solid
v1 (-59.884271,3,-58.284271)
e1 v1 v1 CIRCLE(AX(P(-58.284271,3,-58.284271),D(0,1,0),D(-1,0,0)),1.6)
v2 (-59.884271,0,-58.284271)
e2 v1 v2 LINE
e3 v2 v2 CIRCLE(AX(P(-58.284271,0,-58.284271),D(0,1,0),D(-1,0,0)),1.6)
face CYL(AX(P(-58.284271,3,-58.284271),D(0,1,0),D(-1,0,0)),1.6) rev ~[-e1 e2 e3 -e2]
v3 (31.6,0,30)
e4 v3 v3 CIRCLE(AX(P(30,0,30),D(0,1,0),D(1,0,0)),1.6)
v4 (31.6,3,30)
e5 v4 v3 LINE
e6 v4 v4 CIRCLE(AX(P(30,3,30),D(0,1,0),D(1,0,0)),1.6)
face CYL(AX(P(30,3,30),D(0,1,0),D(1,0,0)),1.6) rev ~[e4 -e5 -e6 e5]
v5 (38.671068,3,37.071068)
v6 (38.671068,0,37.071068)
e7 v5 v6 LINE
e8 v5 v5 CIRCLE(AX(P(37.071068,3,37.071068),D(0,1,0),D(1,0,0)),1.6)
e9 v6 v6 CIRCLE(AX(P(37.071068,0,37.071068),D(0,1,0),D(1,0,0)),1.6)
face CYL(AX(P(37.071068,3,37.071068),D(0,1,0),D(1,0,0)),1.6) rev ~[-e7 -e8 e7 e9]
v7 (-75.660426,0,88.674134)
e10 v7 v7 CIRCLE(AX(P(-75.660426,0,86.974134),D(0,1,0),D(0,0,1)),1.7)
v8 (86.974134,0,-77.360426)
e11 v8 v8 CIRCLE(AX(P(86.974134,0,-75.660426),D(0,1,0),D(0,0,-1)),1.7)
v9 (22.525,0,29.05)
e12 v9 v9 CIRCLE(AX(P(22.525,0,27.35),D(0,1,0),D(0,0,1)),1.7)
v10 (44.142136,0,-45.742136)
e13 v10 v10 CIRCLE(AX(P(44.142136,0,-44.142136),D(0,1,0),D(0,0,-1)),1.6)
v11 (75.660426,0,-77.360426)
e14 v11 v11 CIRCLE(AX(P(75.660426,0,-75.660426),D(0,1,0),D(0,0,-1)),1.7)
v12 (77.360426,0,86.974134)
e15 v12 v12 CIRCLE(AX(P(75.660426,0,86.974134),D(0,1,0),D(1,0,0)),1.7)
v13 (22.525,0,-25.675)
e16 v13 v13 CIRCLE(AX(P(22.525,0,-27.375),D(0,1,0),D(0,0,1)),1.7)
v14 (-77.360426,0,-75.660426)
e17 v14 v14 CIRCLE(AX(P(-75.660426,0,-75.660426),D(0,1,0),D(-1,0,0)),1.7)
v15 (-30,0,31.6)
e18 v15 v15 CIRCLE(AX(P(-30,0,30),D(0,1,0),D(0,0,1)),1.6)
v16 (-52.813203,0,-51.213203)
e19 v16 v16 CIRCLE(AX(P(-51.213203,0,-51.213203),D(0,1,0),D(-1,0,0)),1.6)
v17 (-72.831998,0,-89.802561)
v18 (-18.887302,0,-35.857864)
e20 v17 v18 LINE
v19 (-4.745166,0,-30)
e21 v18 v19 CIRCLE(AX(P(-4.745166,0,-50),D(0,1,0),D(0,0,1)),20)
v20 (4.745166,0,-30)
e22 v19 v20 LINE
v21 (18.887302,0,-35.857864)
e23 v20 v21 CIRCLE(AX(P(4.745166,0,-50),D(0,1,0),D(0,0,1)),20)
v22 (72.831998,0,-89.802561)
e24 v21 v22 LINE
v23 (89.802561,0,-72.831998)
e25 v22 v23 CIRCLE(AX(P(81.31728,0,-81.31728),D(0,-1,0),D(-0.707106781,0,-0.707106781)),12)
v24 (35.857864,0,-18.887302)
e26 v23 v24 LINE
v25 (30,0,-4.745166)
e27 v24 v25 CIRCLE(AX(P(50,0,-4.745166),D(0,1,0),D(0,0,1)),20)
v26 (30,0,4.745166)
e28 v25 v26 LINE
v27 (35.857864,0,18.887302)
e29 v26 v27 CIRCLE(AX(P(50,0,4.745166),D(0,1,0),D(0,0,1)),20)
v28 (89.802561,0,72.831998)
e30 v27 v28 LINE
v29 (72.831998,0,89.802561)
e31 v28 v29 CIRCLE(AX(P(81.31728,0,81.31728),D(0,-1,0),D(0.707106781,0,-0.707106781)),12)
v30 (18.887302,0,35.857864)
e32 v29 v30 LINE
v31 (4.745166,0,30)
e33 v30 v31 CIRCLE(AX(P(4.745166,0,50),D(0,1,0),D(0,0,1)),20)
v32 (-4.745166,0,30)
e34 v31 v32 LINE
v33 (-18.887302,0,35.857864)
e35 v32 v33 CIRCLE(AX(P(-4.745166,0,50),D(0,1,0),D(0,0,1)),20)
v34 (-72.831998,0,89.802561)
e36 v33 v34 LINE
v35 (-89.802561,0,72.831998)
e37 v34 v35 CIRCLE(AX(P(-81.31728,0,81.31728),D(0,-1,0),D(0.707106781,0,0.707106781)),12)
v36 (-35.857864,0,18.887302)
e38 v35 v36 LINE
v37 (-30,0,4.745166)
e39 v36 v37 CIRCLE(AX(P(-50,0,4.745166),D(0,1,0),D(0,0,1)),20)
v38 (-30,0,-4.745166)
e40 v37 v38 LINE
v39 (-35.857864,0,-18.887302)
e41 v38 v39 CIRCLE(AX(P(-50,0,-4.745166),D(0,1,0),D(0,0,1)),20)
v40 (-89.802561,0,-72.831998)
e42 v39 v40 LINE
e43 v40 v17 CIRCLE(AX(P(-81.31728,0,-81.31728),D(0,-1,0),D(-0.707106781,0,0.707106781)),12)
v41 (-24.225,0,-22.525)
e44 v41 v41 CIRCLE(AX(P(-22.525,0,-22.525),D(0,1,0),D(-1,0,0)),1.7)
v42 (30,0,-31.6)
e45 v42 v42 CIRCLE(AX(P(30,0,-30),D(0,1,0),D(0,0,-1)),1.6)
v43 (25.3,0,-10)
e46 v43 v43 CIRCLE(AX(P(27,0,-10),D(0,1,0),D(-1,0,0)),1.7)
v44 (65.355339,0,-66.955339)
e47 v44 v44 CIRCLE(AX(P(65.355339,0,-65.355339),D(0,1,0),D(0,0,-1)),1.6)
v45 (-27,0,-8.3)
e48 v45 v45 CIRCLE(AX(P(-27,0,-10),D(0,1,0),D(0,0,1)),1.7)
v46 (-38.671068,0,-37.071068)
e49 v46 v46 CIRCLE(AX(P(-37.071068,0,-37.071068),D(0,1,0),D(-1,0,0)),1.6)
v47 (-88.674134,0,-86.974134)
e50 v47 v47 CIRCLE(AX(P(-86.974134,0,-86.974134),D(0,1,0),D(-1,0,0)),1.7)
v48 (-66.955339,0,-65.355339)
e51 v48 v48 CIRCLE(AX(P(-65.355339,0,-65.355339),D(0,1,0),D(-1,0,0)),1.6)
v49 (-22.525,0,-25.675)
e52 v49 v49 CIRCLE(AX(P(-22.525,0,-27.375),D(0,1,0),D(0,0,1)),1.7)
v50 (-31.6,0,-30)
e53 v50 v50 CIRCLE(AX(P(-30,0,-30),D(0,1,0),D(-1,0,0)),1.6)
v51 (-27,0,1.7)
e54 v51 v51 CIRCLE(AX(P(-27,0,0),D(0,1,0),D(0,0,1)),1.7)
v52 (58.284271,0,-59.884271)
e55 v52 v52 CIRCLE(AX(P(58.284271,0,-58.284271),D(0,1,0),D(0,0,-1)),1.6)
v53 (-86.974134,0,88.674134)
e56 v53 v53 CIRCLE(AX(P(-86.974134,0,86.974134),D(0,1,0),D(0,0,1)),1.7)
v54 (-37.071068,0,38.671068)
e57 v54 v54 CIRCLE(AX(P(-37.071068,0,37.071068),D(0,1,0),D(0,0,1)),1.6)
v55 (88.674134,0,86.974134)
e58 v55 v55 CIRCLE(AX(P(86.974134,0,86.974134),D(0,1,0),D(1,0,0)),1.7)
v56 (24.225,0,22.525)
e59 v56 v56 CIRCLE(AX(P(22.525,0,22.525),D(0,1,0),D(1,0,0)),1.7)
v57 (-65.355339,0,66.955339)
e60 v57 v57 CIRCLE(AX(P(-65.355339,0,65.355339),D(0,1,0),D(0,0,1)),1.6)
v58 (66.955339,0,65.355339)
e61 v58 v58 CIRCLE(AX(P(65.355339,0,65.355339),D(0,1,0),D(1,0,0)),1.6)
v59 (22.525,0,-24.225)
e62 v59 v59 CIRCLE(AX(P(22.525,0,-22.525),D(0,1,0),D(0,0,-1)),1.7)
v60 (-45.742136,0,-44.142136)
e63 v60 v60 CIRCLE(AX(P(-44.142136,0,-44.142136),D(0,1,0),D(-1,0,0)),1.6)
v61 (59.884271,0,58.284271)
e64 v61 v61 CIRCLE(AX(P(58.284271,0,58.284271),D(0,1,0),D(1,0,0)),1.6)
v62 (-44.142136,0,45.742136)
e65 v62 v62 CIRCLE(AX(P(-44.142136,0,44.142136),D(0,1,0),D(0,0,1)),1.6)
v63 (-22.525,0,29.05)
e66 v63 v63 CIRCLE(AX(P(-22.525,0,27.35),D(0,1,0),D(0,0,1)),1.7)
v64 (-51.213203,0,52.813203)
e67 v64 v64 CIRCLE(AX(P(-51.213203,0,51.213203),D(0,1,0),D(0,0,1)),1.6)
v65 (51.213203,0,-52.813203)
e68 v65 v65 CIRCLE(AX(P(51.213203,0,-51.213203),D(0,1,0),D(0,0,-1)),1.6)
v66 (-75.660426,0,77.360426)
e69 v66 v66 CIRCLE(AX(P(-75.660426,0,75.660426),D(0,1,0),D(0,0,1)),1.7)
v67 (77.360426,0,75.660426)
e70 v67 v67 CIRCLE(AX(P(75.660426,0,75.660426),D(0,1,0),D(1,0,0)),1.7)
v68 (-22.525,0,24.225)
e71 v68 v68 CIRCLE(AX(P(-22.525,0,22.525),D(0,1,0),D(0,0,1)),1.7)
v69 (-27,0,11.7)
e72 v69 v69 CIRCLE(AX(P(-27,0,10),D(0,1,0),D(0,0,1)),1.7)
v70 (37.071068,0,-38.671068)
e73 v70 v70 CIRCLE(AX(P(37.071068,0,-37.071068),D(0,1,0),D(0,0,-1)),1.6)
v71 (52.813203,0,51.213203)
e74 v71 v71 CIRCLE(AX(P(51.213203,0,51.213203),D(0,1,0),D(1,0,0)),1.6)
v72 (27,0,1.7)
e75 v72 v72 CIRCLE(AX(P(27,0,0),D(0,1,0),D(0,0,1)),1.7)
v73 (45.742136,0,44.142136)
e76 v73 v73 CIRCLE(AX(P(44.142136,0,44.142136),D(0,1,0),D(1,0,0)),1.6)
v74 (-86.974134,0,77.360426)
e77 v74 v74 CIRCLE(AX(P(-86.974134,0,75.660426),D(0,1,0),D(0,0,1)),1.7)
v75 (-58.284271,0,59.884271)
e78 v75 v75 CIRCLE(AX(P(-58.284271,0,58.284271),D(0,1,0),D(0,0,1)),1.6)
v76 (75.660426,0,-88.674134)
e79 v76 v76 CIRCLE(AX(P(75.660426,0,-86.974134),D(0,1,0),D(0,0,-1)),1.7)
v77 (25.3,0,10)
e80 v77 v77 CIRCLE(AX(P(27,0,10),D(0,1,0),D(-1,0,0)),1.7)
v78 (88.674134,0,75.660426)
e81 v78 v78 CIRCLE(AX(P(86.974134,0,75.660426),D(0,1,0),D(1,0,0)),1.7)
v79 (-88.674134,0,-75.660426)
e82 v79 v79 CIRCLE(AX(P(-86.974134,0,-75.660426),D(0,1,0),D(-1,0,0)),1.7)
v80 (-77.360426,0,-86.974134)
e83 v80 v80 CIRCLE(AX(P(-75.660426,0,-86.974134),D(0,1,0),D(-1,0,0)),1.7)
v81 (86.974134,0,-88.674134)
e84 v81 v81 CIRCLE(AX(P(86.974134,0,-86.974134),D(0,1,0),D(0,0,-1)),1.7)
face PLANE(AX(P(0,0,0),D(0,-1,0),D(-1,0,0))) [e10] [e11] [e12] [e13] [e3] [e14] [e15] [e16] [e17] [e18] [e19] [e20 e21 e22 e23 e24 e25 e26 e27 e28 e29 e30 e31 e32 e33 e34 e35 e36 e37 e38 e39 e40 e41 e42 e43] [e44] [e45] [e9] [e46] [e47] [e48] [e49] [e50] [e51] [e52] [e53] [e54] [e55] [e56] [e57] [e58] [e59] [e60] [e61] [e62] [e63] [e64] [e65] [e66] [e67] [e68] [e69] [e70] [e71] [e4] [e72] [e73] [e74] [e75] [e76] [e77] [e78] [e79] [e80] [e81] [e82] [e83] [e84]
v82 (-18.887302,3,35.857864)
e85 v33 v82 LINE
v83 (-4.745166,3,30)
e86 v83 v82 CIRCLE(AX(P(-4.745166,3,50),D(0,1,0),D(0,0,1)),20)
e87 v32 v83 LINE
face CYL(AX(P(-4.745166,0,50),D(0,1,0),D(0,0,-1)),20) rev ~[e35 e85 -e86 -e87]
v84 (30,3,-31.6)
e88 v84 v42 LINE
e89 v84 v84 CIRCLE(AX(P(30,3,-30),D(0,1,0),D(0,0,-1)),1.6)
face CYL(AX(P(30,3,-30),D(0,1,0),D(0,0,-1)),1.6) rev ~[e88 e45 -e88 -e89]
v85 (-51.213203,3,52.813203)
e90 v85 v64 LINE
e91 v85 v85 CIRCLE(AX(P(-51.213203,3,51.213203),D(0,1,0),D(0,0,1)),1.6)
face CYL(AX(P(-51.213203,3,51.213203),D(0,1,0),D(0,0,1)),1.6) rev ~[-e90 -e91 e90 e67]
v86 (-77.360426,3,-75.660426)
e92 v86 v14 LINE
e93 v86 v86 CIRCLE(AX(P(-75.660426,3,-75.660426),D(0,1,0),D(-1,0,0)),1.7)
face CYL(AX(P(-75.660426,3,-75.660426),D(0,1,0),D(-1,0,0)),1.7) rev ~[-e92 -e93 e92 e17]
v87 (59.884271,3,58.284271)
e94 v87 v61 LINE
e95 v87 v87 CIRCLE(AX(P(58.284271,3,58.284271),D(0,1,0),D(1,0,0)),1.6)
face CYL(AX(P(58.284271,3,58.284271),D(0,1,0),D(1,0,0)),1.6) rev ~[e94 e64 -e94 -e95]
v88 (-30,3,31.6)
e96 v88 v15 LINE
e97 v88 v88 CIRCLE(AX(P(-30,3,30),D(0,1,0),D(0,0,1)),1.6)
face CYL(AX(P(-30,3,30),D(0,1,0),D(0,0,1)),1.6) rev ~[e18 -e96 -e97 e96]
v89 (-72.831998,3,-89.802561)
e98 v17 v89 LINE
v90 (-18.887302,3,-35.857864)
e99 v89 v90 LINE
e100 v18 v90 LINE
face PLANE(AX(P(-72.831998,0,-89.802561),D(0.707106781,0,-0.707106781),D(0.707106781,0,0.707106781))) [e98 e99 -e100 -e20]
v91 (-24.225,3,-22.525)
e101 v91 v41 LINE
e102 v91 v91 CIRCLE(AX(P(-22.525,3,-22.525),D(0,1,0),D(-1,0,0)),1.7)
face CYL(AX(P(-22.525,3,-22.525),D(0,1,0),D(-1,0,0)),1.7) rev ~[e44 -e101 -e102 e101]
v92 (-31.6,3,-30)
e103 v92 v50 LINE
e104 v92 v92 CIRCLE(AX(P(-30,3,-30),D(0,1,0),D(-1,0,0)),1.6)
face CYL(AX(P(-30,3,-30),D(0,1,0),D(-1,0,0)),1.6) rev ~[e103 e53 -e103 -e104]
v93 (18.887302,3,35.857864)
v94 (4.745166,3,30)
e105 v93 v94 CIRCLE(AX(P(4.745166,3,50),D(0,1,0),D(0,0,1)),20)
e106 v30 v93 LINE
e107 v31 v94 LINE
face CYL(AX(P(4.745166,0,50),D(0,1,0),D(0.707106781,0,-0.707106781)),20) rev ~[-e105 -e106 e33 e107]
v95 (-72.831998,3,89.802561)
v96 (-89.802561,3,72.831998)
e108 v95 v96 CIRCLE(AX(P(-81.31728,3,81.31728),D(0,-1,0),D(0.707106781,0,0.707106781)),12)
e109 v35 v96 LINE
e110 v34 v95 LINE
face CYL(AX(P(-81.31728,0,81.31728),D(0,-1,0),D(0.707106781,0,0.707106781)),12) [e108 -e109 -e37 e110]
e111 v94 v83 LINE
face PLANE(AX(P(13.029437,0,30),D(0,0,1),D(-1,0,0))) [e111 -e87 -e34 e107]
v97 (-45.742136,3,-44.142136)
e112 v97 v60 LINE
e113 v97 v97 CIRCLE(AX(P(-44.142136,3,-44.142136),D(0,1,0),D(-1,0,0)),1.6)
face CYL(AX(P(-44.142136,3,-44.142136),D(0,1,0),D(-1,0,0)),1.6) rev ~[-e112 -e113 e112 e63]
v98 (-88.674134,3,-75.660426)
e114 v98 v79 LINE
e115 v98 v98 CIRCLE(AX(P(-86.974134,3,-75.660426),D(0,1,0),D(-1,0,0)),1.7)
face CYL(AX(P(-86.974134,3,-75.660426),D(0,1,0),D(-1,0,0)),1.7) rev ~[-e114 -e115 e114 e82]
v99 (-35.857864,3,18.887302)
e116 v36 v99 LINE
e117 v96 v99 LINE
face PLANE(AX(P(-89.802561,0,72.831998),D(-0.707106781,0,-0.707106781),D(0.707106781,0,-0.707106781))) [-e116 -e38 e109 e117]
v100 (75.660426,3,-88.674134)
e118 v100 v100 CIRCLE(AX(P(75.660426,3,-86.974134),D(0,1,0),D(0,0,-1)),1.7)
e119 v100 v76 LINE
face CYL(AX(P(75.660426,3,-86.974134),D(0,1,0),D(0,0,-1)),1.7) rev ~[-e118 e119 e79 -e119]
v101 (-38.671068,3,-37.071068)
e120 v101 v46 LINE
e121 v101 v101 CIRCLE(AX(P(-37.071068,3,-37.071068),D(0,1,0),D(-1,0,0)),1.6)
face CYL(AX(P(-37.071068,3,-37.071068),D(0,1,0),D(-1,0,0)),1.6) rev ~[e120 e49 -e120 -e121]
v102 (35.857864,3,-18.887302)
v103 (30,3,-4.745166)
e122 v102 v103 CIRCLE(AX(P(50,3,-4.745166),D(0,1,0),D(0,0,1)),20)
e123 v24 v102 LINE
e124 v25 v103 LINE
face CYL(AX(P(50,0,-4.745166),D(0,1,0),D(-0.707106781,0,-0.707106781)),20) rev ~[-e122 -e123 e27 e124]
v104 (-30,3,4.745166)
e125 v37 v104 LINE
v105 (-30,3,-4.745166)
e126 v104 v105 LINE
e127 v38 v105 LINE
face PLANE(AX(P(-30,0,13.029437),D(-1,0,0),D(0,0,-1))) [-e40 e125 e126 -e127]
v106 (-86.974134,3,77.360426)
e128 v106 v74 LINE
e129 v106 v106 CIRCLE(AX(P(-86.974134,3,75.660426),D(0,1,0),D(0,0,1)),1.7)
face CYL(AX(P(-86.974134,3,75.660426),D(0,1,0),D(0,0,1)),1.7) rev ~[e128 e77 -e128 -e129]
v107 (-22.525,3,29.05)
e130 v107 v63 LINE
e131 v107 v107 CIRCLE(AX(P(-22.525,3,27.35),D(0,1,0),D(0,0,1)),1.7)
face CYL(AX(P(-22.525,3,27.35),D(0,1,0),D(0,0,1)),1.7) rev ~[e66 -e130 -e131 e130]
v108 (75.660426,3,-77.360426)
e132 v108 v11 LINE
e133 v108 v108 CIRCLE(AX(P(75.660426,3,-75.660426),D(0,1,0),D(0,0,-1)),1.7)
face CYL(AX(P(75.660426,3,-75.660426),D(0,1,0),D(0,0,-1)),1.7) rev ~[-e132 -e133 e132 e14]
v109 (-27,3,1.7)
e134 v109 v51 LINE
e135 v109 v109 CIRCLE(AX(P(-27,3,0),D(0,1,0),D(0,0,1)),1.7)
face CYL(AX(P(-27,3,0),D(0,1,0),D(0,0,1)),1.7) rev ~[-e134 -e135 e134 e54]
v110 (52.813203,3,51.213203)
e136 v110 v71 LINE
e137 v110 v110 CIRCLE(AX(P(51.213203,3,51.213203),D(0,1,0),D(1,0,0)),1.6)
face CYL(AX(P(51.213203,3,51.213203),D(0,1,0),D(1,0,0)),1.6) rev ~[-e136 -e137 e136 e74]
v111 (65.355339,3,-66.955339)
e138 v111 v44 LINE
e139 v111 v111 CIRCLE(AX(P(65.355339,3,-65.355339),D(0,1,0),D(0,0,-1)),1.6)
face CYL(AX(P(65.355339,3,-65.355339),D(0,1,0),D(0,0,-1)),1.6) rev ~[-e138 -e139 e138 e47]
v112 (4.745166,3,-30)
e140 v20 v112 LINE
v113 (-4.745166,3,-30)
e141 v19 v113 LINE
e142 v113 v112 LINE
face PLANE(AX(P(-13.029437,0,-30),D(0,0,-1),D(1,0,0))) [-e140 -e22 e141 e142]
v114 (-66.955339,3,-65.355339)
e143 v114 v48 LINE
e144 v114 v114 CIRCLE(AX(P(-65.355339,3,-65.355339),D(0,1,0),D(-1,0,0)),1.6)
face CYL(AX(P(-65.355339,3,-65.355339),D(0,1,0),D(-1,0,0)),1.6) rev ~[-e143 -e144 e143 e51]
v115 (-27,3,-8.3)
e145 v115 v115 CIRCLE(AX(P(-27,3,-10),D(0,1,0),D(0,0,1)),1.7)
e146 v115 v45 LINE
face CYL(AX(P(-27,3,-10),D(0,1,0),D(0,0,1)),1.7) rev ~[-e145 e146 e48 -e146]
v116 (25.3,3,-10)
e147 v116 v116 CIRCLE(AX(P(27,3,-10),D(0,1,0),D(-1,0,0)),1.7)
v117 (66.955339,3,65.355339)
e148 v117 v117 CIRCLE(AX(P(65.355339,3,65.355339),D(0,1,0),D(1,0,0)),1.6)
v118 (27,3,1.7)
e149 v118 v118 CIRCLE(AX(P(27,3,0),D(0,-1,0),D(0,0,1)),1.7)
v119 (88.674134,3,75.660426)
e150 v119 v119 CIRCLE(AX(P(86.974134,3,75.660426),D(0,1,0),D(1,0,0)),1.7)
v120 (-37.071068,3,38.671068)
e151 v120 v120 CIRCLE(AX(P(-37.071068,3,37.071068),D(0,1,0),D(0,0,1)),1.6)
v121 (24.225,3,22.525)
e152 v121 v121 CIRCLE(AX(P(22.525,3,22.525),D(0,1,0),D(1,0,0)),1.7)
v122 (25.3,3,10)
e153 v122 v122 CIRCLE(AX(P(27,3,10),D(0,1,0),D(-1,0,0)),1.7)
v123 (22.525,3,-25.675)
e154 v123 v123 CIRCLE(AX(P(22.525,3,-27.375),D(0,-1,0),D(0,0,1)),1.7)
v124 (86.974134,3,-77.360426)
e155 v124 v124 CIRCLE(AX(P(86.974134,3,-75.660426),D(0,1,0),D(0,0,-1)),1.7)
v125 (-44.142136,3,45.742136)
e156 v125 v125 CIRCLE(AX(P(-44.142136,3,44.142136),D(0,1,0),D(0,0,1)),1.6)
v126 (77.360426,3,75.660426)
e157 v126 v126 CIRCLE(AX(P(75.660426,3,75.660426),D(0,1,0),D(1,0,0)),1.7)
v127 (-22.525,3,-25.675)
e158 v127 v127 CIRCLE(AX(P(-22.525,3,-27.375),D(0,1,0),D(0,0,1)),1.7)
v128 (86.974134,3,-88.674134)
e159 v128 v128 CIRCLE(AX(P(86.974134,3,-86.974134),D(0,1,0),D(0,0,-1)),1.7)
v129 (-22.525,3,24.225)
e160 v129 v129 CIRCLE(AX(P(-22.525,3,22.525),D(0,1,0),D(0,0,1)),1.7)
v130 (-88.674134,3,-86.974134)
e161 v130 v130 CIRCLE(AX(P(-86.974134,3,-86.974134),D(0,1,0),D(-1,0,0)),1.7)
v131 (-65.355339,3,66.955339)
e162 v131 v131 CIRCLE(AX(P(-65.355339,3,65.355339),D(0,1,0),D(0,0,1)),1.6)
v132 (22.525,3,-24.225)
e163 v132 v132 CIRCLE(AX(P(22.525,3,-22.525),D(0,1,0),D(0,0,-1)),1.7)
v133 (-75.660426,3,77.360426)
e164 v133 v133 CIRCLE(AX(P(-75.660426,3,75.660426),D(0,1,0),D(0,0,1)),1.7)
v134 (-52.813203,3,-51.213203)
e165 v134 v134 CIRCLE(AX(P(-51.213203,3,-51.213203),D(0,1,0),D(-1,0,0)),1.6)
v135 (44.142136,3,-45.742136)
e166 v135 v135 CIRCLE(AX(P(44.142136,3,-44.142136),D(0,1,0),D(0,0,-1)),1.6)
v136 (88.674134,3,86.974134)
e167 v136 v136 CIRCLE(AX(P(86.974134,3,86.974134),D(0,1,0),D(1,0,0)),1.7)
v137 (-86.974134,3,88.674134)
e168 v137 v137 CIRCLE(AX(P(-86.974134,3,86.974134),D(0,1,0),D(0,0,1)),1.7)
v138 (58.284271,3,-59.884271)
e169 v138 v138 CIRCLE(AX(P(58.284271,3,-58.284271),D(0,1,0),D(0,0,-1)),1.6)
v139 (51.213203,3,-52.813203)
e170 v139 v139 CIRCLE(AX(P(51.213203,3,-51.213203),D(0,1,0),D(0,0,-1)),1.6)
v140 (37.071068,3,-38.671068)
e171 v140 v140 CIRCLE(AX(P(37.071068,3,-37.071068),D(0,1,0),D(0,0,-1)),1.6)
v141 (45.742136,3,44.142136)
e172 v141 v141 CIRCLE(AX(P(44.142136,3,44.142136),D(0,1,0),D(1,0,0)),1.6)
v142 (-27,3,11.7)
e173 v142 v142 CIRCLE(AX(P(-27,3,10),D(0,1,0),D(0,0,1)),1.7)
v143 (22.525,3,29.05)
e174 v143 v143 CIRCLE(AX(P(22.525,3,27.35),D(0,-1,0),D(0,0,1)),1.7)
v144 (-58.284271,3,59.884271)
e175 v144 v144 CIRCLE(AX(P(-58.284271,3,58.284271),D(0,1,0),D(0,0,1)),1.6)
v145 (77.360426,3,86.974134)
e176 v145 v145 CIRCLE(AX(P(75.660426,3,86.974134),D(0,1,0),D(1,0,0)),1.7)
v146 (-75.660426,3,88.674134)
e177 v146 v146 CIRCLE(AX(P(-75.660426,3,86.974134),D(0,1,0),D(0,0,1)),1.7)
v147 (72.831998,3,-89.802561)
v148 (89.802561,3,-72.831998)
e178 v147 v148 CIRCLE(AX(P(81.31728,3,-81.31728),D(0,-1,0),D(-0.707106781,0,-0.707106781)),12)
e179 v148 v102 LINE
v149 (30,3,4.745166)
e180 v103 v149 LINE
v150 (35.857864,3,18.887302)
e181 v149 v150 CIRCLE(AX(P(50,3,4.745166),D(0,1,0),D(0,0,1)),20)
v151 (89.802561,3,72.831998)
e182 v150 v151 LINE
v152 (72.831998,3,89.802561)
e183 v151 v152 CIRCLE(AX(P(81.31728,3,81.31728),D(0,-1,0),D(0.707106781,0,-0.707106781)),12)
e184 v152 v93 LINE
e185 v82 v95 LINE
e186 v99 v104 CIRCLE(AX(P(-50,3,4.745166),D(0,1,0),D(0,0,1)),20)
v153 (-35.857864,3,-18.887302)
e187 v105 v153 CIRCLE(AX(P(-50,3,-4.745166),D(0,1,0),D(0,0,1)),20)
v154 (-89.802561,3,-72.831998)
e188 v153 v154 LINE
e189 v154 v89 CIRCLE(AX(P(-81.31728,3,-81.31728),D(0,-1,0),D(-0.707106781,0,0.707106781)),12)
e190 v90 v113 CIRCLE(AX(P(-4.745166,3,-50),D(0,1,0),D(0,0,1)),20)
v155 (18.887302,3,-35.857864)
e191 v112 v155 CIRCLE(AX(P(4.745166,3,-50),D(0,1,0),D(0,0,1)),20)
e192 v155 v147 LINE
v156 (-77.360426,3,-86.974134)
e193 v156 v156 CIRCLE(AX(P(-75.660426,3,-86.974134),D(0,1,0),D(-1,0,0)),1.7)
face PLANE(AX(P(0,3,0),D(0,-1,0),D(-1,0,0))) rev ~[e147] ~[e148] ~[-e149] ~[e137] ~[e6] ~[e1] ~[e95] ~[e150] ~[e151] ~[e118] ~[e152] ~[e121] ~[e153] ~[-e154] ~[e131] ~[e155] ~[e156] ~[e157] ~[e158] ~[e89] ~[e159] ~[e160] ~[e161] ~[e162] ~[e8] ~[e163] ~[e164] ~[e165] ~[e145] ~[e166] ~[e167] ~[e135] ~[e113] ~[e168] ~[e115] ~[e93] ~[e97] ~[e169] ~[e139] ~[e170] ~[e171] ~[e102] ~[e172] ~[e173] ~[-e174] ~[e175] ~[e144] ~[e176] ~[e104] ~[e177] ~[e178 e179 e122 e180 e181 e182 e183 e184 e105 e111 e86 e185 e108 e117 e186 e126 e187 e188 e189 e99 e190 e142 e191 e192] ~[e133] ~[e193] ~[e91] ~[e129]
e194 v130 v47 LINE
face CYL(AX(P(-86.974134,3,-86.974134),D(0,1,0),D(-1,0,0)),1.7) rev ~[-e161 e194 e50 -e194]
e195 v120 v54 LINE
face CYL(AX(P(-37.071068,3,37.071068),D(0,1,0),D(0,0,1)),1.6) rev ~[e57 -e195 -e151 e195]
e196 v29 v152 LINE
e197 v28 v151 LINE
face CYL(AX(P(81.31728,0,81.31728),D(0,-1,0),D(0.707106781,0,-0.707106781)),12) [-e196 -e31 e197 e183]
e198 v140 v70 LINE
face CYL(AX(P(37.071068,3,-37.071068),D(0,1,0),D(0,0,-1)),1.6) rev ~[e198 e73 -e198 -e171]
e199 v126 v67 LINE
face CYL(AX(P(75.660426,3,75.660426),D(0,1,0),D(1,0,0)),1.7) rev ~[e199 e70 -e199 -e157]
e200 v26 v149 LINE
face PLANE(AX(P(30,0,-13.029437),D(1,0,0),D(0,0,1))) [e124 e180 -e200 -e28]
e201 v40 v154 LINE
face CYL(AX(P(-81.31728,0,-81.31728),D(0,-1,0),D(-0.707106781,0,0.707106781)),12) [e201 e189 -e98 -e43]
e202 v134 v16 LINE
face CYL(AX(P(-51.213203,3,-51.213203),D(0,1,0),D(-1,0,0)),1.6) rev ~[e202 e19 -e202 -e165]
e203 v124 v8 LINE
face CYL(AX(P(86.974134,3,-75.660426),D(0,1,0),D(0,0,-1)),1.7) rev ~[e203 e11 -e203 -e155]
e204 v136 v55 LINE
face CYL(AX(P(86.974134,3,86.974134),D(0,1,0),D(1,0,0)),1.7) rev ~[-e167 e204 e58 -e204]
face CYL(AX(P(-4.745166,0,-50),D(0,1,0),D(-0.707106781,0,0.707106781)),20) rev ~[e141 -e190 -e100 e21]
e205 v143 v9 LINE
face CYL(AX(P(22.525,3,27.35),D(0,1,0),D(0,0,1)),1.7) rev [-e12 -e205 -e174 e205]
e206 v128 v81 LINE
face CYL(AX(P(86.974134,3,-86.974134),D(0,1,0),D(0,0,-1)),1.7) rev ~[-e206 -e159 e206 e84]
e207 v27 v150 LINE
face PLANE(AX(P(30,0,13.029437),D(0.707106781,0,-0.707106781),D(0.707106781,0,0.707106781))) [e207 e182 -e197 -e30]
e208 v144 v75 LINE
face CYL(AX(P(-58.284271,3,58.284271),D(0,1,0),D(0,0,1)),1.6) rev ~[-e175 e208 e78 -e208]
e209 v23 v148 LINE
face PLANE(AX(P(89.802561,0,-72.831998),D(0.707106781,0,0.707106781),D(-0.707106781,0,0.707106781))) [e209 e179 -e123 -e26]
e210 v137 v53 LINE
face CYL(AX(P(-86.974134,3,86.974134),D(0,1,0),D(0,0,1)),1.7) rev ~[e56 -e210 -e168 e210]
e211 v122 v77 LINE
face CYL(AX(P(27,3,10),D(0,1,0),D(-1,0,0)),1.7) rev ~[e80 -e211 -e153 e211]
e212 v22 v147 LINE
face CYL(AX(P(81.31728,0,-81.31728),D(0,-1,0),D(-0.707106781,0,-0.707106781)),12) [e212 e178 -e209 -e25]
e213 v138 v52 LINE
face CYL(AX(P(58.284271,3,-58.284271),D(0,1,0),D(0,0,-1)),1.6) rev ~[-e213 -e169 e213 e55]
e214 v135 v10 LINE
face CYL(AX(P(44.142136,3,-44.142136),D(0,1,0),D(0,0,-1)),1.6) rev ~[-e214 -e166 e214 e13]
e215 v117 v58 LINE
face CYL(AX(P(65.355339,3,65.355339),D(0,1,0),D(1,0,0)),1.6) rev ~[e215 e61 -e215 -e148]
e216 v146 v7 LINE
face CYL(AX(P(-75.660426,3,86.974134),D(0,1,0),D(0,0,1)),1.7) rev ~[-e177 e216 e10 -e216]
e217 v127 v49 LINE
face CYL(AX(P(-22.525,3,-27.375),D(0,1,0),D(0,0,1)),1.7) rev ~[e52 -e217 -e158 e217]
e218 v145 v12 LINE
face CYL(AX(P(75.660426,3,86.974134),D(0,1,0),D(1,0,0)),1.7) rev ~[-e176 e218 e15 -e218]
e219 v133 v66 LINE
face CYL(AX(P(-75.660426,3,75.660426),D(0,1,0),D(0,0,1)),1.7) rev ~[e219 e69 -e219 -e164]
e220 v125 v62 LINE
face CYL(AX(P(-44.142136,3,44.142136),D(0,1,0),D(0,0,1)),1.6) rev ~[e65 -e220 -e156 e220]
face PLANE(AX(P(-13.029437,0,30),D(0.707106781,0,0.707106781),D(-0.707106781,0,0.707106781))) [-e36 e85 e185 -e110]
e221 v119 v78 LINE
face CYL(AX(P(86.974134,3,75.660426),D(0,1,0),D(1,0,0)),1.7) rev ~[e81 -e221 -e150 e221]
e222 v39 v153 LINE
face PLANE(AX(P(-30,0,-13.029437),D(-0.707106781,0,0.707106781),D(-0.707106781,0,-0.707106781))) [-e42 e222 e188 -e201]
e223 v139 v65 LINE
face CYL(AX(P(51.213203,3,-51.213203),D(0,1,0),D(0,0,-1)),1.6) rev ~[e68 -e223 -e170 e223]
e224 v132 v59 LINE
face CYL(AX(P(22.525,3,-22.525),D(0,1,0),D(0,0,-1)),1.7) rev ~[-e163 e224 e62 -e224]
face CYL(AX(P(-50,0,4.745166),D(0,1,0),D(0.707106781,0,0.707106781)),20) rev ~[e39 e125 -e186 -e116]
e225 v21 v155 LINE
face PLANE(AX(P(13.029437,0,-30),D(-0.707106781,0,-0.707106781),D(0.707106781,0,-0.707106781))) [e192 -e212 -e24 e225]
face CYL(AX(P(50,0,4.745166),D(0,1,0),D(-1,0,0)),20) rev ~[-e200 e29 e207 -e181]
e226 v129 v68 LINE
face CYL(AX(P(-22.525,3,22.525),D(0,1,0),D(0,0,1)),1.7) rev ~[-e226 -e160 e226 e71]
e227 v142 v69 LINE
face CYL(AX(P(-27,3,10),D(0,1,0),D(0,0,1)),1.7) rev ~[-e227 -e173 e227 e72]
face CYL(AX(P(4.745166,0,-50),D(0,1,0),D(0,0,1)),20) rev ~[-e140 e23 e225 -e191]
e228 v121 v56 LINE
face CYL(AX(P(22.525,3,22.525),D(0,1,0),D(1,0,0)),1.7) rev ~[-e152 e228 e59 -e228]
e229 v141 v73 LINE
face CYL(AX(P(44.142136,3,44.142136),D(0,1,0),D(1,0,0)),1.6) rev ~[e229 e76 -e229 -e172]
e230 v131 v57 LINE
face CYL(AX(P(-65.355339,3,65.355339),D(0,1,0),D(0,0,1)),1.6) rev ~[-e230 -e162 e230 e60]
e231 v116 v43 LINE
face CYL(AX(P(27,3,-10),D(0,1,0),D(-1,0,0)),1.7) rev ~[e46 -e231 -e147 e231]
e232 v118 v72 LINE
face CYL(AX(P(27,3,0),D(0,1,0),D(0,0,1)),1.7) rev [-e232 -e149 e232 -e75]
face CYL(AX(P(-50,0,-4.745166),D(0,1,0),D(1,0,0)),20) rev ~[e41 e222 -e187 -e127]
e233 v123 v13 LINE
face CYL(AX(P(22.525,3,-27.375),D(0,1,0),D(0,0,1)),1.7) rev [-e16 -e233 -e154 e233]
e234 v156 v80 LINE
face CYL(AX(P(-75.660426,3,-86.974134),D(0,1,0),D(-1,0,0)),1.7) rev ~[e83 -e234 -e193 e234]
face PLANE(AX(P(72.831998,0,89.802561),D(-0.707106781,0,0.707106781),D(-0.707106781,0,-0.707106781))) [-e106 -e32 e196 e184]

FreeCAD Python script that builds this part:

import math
import FreeCAD as App
import Part
import Sketcher
Q = App.Units.Quantity


def edges_at(feature, points):
    """Names of the edges that pass closest to the given points."""
    edges = feature.Shape.Edges
    near = lambda p: min(range(len(edges)), key=lambda i: edges[i].distToShape(Part.Vertex(*p))[0])
    return sorted({f"Edge{near(p) + 1}" for p in points})

doc = App.newDocument("Part")
body = doc.addObject("PartDesign::Body", "Body")

# Sketch on XZ plane
sketch1 = doc.addObject("Sketcher::SketchObject", "Sketch")
body.addObject(sketch1)
sketch1.AttachmentSupport = (doc.XZ_Plane, [""])
sketch1.MapMode = "FlatFace"
sketch1.addGeometry([
    Part.LineSegment(App.Vector(-13, -30, 0), App.Vector(-73, -90, 0)),  # 0
    Part.ArcOfCircle(Part.Circle(App.Vector(-81, -81, 0), App.Vector(0, 0, 1), 12), math.radians(135), math.radians(315)),  # 1
    Part.LineSegment(App.Vector(-90, -73, 0), App.Vector(-30, -13, 0)),  # 2
    Part.LineSegment(App.Vector(-30, -13, 0), App.Vector(-30, 13, 0)),  # 3
    Part.LineSegment(App.Vector(-30, 13, 0), App.Vector(-90, 73, 0)),  # 4
    Part.ArcOfCircle(Part.Circle(App.Vector(-81, 81, 0), App.Vector(0, 0, 1), 12), math.radians(45), math.radians(225)),  # 5
    Part.LineSegment(App.Vector(-73, 90, 0), App.Vector(-13, 30, 0)),  # 6
    Part.LineSegment(App.Vector(-13, 30, 0), App.Vector(13, 30, 0)),  # 7
    Part.LineSegment(App.Vector(13, 30, 0), App.Vector(73, 90, 0)),  # 8
    Part.ArcOfCircle(Part.Circle(App.Vector(81, 81, 0), App.Vector(0, 0, 1), 12), math.radians(-45), math.radians(135)),  # 9
    Part.LineSegment(App.Vector(90, 73, 0), App.Vector(30, 13, 0)),  # 10
    Part.LineSegment(App.Vector(30, 13, 0), App.Vector(30, -13, 0)),  # 11
    Part.LineSegment(App.Vector(30, -13, 0), App.Vector(90, -73, 0)),  # 12
    Part.ArcOfCircle(Part.Circle(App.Vector(81, -81, 0), App.Vector(0, 0, 1), 12), math.radians(-135), math.radians(45)),  # 13
    Part.LineSegment(App.Vector(73, -90, 0), App.Vector(13, -30, 0)),  # 14
    Part.LineSegment(App.Vector(13, -30, 0), App.Vector(-13, -30, 0)),  # 15
], False)
sketch1.addConstraint([
    Sketcher.Constraint("Tangent", 0, 2, 1, 2),
    Sketcher.Constraint("Tangent", 1, 1, 2, 1),
    Sketcher.Constraint("Coincident", 2, 2, 3, 1),
    Sketcher.Constraint("Coincident", 3, 2, 4, 1),
    Sketcher.Constraint("Tangent", 4, 2, 5, 2),
    Sketcher.Constraint("Tangent", 5, 1, 6, 1),
    Sketcher.Constraint("Coincident", 6, 2, 7, 1),
    Sketcher.Constraint("Coincident", 7, 2, 8, 1),
    Sketcher.Constraint("Tangent", 8, 2, 9, 2),
    Sketcher.Constraint("Tangent", 9, 1, 10, 1),
    Sketcher.Constraint("Coincident", 10, 2, 11, 1),
    Sketcher.Constraint("Coincident", 11, 2, 12, 1),
    Sketcher.Constraint("Tangent", 12, 2, 13, 2),
    Sketcher.Constraint("Tangent", 13, 1, 14, 1),
    Sketcher.Constraint("Coincident", 14, 2, 15, 1),
    Sketcher.Constraint("Coincident", 15, 2, 0, 1),
    Sketcher.Constraint("Vertical", 3),
    Sketcher.Constraint("Horizontal", 7),
    Sketcher.Constraint("Vertical", 11),
    Sketcher.Constraint("Horizontal", 15),
    Sketcher.Constraint("Equal", 1, 5),
    Sketcher.Constraint("Equal", 5, 9),
    Sketcher.Constraint("Equal", 9, 13),
    Sketcher.Constraint("Symmetric", 1, 3, 9, 3, -1, 1),
    Sketcher.Constraint("Symmetric", 5, 3, 13, 3, -1, 1),
    Sketcher.Constraint("Symmetric", 2, 2, 10, 2, -1, 1),
    Sketcher.Constraint("Symmetric", 6, 2, 14, 2, -1, 1),
    Sketcher.Constraint("Symmetric", 5, 3, 9, 3, -2),
    Sketcher.Constraint("Parallel", 0, 2),
    Sketcher.Constraint("Perpendicular", 2, 4),
    Sketcher.Constraint("Parallel", 4, 6),
    Sketcher.Constraint("Perpendicular", 6, 8),
    Sketcher.Constraint("Perpendicular", 10, 12),
    Sketcher.Constraint("Horizontal", 5, 1, 8, 2),
    Sketcher.Constraint("Equal", 15, 3),
    Sketcher.Constraint("Equal", 0, 2),
    Sketcher.Constraint("Radius", 1, Q("12 mm")),
    Sketcher.Constraint("DistanceX", 2, 2, -1, 1, Q("30 mm")),
    Sketcher.Constraint("DistanceX", 0, 2, -1, 1, Q("72.831998 mm")),
])
pad1 = doc.addObject("PartDesign::Pad", "Pad")
body.addObject(pad1)
pad1.Profile = sketch1
pad1.Length = 3
pad1.Reversed = True
doc.recompute()

fillet = doc.addObject("PartDesign::Fillet", "Fillet")
body.addObject(fillet)
fillet.Base = (pad1, edges_at(pad1, [
    (-13.029, 1.5, -30),
    (13.029, 1.5, -30),
    (30, 1.5, -13.029),
    (30, 1.5, 13.029),
    (13.029, 1.5, 30),
    (-13.029, 1.5, 30),
    (-30, 1.5, 13.029),
    (-30, 1.5, -13.029),
]))
fillet.Radius = 20

# Sketch on XZ plane
sketch2 = doc.addObject("Sketcher::SketchObject", "Sketch001")
body.addObject(sketch2)
sketch2.AttachmentSupport = (doc.XZ_Plane, [""])
sketch2.MapMode = "FlatFace"
sketch2.AttachmentOffset = App.Placement(App.Vector(0, 0, -3), App.Rotation())
sketch2.addGeometry(Part.Circle(App.Vector(-22.5, 22.5, 0), App.Vector(0, 0, 1), 1.7), False)
sketch2.addConstraint([
    Sketcher.Constraint("Diameter", 0, Q("3.4 mm")),
    Sketcher.Constraint("DistanceX", 0, 3, -1, 1, Q("22.525 mm")),
    Sketcher.Constraint("DistanceY", -1, 1, 0, 3, Q("22.525 mm")),
])
pocket1 = doc.addObject("PartDesign::Pocket", "Pocket")
body.addObject(pocket1)
pocket1.Profile = sketch2
pocket1.Type = "ThroughAll"
pocket1.Reversed = True
doc.recompute()

polarpattern = doc.addObject("PartDesign::PolarPattern", "PolarPattern")
body.addObject(polarpattern)
polarpattern.Originals = [pocket1]
polarpattern.Axis = (doc.Y_Axis, [""])
polarpattern.Angle = 360
polarpattern.Occurrences = 4
body.Tip = polarpattern

# Sketch on XZ plane
sketch3 = doc.addObject("Sketcher::SketchObject", "Sketch002")
body.addObject(sketch3)
sketch3.AttachmentSupport = (doc.XZ_Plane, [""])
sketch3.MapMode = "FlatFace"
sketch3.AttachmentOffset = App.Placement(App.Vector(0, 0, -3), App.Rotation())
sketch3.addGeometry(Part.Circle(App.Vector(-30, 30, 0), App.Vector(0, 0, 1), 1.6), False)
sketch3.addConstraint([
    Sketcher.Constraint("Diameter", 0, Q("3.2 mm")),
    Sketcher.Constraint("DistanceX", 0, 3, -1, 1, Q("30 mm")),
    Sketcher.Constraint("DistanceY", -1, 1, 0, 3, Q("30 mm")),
])
pocket2 = doc.addObject("PartDesign::Pocket", "Pocket001")
body.addObject(pocket2)
pocket2.Profile = sketch3
pocket2.Type = "ThroughAll"
pocket2.Reversed = True
doc.recompute()

datumline = doc.addObject("PartDesign::Line", "DatumLine")
body.addObject(datumline)
datumline.Placement = App.Placement(App.Vector(0, 0, 0), App.Rotation(App.Vector(0, 0, 1), App.Vector(-0.707106781, 0, 0.707106781)))
linearpattern = doc.addObject("PartDesign::LinearPattern", "LinearPattern")
body.addObject(linearpattern)
linearpattern.Originals = [pocket2]
linearpattern.Direction = (datumline, [""])
linearpattern.Mode = "offset"
linearpattern.Offset = 10
linearpattern.Occurrences = 6
body.Tip = linearpattern
doc.recompute()

polarpattern2 = doc.addObject("PartDesign::PolarPattern", "PolarPattern001")
body.addObject(polarpattern2)
polarpattern2.Originals = [pocket2]
polarpattern2.Axis = (doc.Y_Axis, [""])
polarpattern2.Angle = 360
polarpattern2.Occurrences = 4
body.Tip = polarpattern2

# Sketch on XZ plane
sketch4 = doc.addObject("Sketcher::SketchObject", "Sketch003")
body.addObject(sketch4)
sketch4.AttachmentSupport = (doc.XZ_Plane, [""])
sketch4.MapMode = "FlatFace"
sketch4.AttachmentOffset = App.Placement(App.Vector(0, 0, -3), App.Rotation())
sketch4.addGeometry(Part.Circle(App.Vector(-37.1, -37.1, 0), App.Vector(0, 0, 1), 1.6), False)
sketch4.addConstraint([
    Sketcher.Constraint("Diameter", 0, Q("3.2 mm")),
    Sketcher.Constraint("DistanceX", 0, 3, -1, 1, Q("37.071068 mm")),
    Sketcher.Constraint("DistanceY", 0, 3, -1, 1, Q("37.071068 mm")),
])
pocket3 = doc.addObject("PartDesign::Pocket", "Pocket002")
body.addObject(pocket3)
pocket3.Profile = sketch4
pocket3.Type = "ThroughAll"
pocket3.Reversed = True

# Sketch on XZ plane
sketch5 = doc.addObject("Sketcher::SketchObject", "Sketch004")
body.addObject(sketch5)
sketch5.AttachmentSupport = (doc.XZ_Plane, [""])
sketch5.MapMode = "FlatFace"
sketch5.AttachmentOffset = App.Placement(App.Vector(0, 0, -3), App.Rotation())
sketch5.addGeometry(Part.Circle(App.Vector(37.1, -37.1, 0), App.Vector(0, 0, 1), 1.6), False)
sketch5.addConstraint([
    Sketcher.Constraint("Diameter", 0, Q("3.2 mm")),
    Sketcher.Constraint("DistanceX", -1, 1, 0, 3, Q("37.071068 mm")),
    Sketcher.Constraint("DistanceY", 0, 3, -1, 1, Q("37.071068 mm")),
])
pocket4 = doc.addObject("PartDesign::Pocket", "Pocket003")
body.addObject(pocket4)
pocket4.Profile = sketch5
pocket4.Type = "ThroughAll"
pocket4.Reversed = True

# Sketch on XZ plane
sketch6 = doc.addObject("Sketcher::SketchObject", "Sketch005")
body.addObject(sketch6)
sketch6.AttachmentSupport = (doc.XZ_Plane, [""])
sketch6.MapMode = "FlatFace"
sketch6.AttachmentOffset = App.Placement(App.Vector(0, 0, -3), App.Rotation())
sketch6.addGeometry(Part.Circle(App.Vector(37.1, 37.1, 0), App.Vector(0, 0, 1), 1.6), False)
sketch6.addConstraint([
    Sketcher.Constraint("Diameter", 0, Q("3.2 mm")),
    Sketcher.Constraint("DistanceX", -1, 1, 0, 3, Q("37.071068 mm")),
    Sketcher.Constraint("DistanceY", -1, 1, 0, 3, Q("37.071068 mm")),
])
pocket5 = doc.addObject("PartDesign::Pocket", "Pocket004")
body.addObject(pocket5)
pocket5.Profile = sketch6
pocket5.Type = "ThroughAll"
pocket5.Reversed = True

# Sketch on XZ plane
sketch7 = doc.addObject("Sketcher::SketchObject", "Sketch006")
body.addObject(sketch7)
sketch7.AttachmentSupport = (doc.XZ_Plane, [""])
sketch7.MapMode = "FlatFace"
sketch7.AttachmentOffset = App.Placement(App.Vector(0, 0, -3), App.Rotation())
sketch7.addGeometry(Part.Circle(App.Vector(-44.1, -44.1, 0), App.Vector(0, 0, 1), 1.6), False)
sketch7.addConstraint([
    Sketcher.Constraint("Diameter", 0, Q("3.2 mm")),
    Sketcher.Constraint("DistanceX", 0, 3, -1, 1, Q("44.142136 mm")),
    Sketcher.Constraint("DistanceY", 0, 3, -1, 1, Q("44.142136 mm")),
])
pocket6 = doc.addObject("PartDesign::Pocket", "Pocket005")
body.addObject(pocket6)
pocket6.Profile = sketch7
pocket6.Type = "ThroughAll"
pocket6.Reversed = True

# Sketch on XZ plane
sketch8 = doc.addObject("Sketcher::SketchObject", "Sketch007")
body.addObject(sketch8)
sketch8.AttachmentSupport = (doc.XZ_Plane, [""])
sketch8.MapMode = "FlatFace"
sketch8.AttachmentOffset = App.Placement(App.Vector(0, 0, -3), App.Rotation())
sketch8.addGeometry(Part.Circle(App.Vector(44.1, -44.1, 0), App.Vector(0, 0, 1), 1.6), False)
sketch8.addConstraint([
    Sketcher.Constraint("Diameter", 0, Q("3.2 mm")),
    Sketcher.Constraint("DistanceX", -1, 1, 0, 3, Q("44.142136 mm")),
    Sketcher.Constraint("DistanceY", 0, 3, -1, 1, Q("44.142136 mm")),
])
pocket7 = doc.addObject("PartDesign::Pocket", "Pocket006")
body.addObject(pocket7)
pocket7.Profile = sketch8
pocket7.Type = "ThroughAll"
pocket7.Reversed = True

# Sketch on XZ plane
sketch9 = doc.addObject("Sketcher::SketchObject", "Sketch008")
body.addObject(sketch9)
sketch9.AttachmentSupport = (doc.XZ_Plane, [""])
sketch9.MapMode = "FlatFace"
sketch9.AttachmentOffset = App.Placement(App.Vector(0, 0, -3), App.Rotation())
sketch9.addGeometry(Part.Circle(App.Vector(44.1, 44.1, 0), App.Vector(0, 0, 1), 1.6), False)
sketch9.addConstraint([
    Sketcher.Constraint("Diameter", 0, Q("3.2 mm")),
    Sketcher.Constraint("DistanceX", -1, 1, 0, 3, Q("44.142136 mm")),
    Sketcher.Constraint("DistanceY", -1, 1, 0, 3, Q("44.142136 mm")),
])
pocket8 = doc.addObject("PartDesign::Pocket", "Pocket007")
body.addObject(pocket8)
pocket8.Profile = sketch9
pocket8.Type = "ThroughAll"
pocket8.Reversed = True

# Sketch on XZ plane
sketch10 = doc.addObject("Sketcher::SketchObject", "Sketch009")
body.addObject(sketch10)
sketch10.AttachmentSupport = (doc.XZ_Plane, [""])
sketch10.MapMode = "FlatFace"
sketch10.AttachmentOffset = App.Placement(App.Vector(0, 0, -3), App.Rotation())
sketch10.addGeometry(Part.Circle(App.Vector(-51.2, -51.2, 0), App.Vector(0, 0, 1), 1.6), False)
sketch10.addConstraint([
    Sketcher.Constraint("Diameter", 0, Q("3.2 mm")),
    Sketcher.Constraint("DistanceX", 0, 3, -1, 1, Q("51.213203 mm")),
    Sketcher.Constraint("DistanceY", 0, 3, -1, 1, Q("51.213203 mm")),
])
pocket9 = doc.addObject("PartDesign::Pocket", "Pocket008")
body.addObject(pocket9)
pocket9.Profile = sketch10
pocket9.Type = "ThroughAll"
pocket9.Reversed = True

# Sketch on XZ plane
sketch11 = doc.addObject("Sketcher::SketchObject", "Sketch010")
body.addObject(sketch11)
sketch11.AttachmentSupport = (doc.XZ_Plane, [""])
sketch11.MapMode = "FlatFace"
sketch11.AttachmentOffset = App.Placement(App.Vector(0, 0, -3), App.Rotation())
sketch11.addGeometry(Part.Circle(App.Vector(51.2, -51.2, 0), App.Vector(0, 0, 1), 1.6), False)
sketch11.addConstraint([
    Sketcher.Constraint("Diameter", 0, Q("3.2 mm")),
    Sketcher.Constraint("DistanceX", -1, 1, 0, 3, Q("51.213203 mm")),
    Sketcher.Constraint("DistanceY", 0, 3, -1, 1, Q("51.213203 mm")),
])
pocket10 = doc.addObject("PartDesign::Pocket", "Pocket009")
body.addObject(pocket10)
pocket10.Profile = sketch11
pocket10.Type = "ThroughAll"
pocket10.Reversed = True

# Sketch on XZ plane
sketch12 = doc.addObject("Sketcher::SketchObject", "Sketch011")
body.addObject(sketch12)
sketch12.AttachmentSupport = (doc.XZ_Plane, [""])
sketch12.MapMode = "FlatFace"
sketch12.AttachmentOffset = App.Placement(App.Vector(0, 0, -3), App.Rotation())
sketch12.addGeometry(Part.Circle(App.Vector(51.2, 51.2, 0), App.Vector(0, 0, 1), 1.6), False)
sketch12.addConstraint([
    Sketcher.Constraint("Diameter", 0, Q("3.2 mm")),
    Sketcher.Constraint("DistanceX", -1, 1, 0, 3, Q("51.213203 mm")),
    Sketcher.Constraint("DistanceY", -1, 1, 0, 3, Q("51.213203 mm")),
])
pocket11 = doc.addObject("PartDesign::Pocket", "Pocket010")
body.addObject(pocket11)
pocket11.Profile = sketch12
pocket11.Type = "ThroughAll"
pocket11.Reversed = True

# Sketch on XZ plane
sketch13 = doc.addObject("Sketcher::SketchObject", "Sketch012")
body.addObject(sketch13)
sketch13.AttachmentSupport = (doc.XZ_Plane, [""])
sketch13.MapMode = "FlatFace"
sketch13.AttachmentOffset = App.Placement(App.Vector(0, 0, -3), App.Rotation())
sketch13.addGeometry(Part.Circle(App.Vector(-58.3, -58.3, 0), App.Vector(0, 0, 1), 1.6), False)
sketch13.addConstraint([
    Sketcher.Constraint("Diameter", 0, Q("3.2 mm")),
    Sketcher.Constraint("DistanceX", 0, 3, -1, 1, Q("58.284271 mm")),
    Sketcher.Constraint("DistanceY", 0, 3, -1, 1, Q("58.284271 mm")),
])
pocket12 = doc.addObject("PartDesign::Pocket", "Pocket011")
body.addObject(pocket12)
pocket12.Profile = sketch13
pocket12.Type = "ThroughAll"
pocket12.Reversed = True

# Sketch on XZ plane
sketch14 = doc.addObject("Sketcher::SketchObject", "Sketch013")
body.addObject(sketch14)
sketch14.AttachmentSupport = (doc.XZ_Plane, [""])
sketch14.MapMode = "FlatFace"
sketch14.AttachmentOffset = App.Placement(App.Vector(0, 0, -3), App.Rotation())
sketch14.addGeometry(Part.Circle(App.Vector(58.3, -58.3, 0), App.Vector(0, 0, 1), 1.6), False)
sketch14.addConstraint([
    Sketcher.Constraint("Diameter", 0, Q("3.2 mm")),
    Sketcher.Constraint("DistanceX", -1, 1, 0, 3, Q("58.284271 mm")),
    Sketcher.Constraint("DistanceY", 0, 3, -1, 1, Q("58.284271 mm")),
])
pocket13 = doc.addObject("PartDesign::Pocket", "Pocket012")
body.addObject(pocket13)
pocket13.Profile = sketch14
pocket13.Type = "ThroughAll"
pocket13.Reversed = True

# Sketch on XZ plane
sketch15 = doc.addObject("Sketcher::SketchObject", "Sketch014")
body.addObject(sketch15)
sketch15.AttachmentSupport = (doc.XZ_Plane, [""])
sketch15.MapMode = "FlatFace"
sketch15.AttachmentOffset = App.Placement(App.Vector(0, 0, -3), App.Rotation())
sketch15.addGeometry(Part.Circle(App.Vector(58.3, 58.3, 0), App.Vector(0, 0, 1), 1.6), False)
sketch15.addConstraint([
    Sketcher.Constraint("Diameter", 0, Q("3.2 mm")),
    Sketcher.Constraint("DistanceX", -1, 1, 0, 3, Q("58.284271 mm")),
    Sketcher.Constraint("DistanceY", -1, 1, 0, 3, Q("58.284271 mm")),
])
pocket14 = doc.addObject("PartDesign::Pocket", "Pocket013")
body.addObject(pocket14)
pocket14.Profile = sketch15
pocket14.Type = "ThroughAll"
pocket14.Reversed = True

# Sketch on XZ plane
sketch16 = doc.addObject("Sketcher::SketchObject", "Sketch015")
body.addObject(sketch16)
sketch16.AttachmentSupport = (doc.XZ_Plane, [""])
sketch16.MapMode = "FlatFace"
sketch16.AttachmentOffset = App.Placement(App.Vector(0, 0, -3), App.Rotation())
sketch16.addGeometry(Part.Circle(App.Vector(-65.4, -65.4, 0), App.Vector(0, 0, 1), 1.6), False)
sketch16.addConstraint([
    Sketcher.Constraint("Diameter", 0, Q("3.2 mm")),
    Sketcher.Constraint("DistanceX", 0, 3, -1, 1, Q("65.355339 mm")),
    Sketcher.Constraint("DistanceY", 0, 3, -1, 1, Q("65.355339 mm")),
])
pocket15 = doc.addObject("PartDesign::Pocket", "Pocket014")
body.addObject(pocket15)
pocket15.Profile = sketch16
pocket15.Type = "ThroughAll"
pocket15.Reversed = True

# Sketch on XZ plane
sketch17 = doc.addObject("Sketcher::SketchObject", "Sketch016")
body.addObject(sketch17)
sketch17.AttachmentSupport = (doc.XZ_Plane, [""])
sketch17.MapMode = "FlatFace"
sketch17.AttachmentOffset = App.Placement(App.Vector(0, 0, -3), App.Rotation())
sketch17.addGeometry(Part.Circle(App.Vector(65.4, -65.4, 0), App.Vector(0, 0, 1), 1.6), False)
sketch17.addConstraint([
    Sketcher.Constraint("Diameter", 0, Q("3.2 mm")),
    Sketcher.Constraint("DistanceX", -1, 1, 0, 3, Q("65.355339 mm")),
    Sketcher.Constraint("DistanceY", 0, 3, -1, 1, Q("65.355339 mm")),
])
pocket16 = doc.addObject("PartDesign::Pocket", "Pocket015")
body.addObject(pocket16)
pocket16.Profile = sketch17
pocket16.Type = "ThroughAll"
pocket16.Reversed = True

# Sketch on XZ plane
sketch18 = doc.addObject("Sketcher::SketchObject", "Sketch017")
body.addObject(sketch18)
sketch18.AttachmentSupport = (doc.XZ_Plane, [""])
sketch18.MapMode = "FlatFace"
sketch18.AttachmentOffset = App.Placement(App.Vector(0, 0, -3), App.Rotation())
sketch18.addGeometry(Part.Circle(App.Vector(65.4, 65.4, 0), App.Vector(0, 0, 1), 1.6), False)
sketch18.addConstraint([
    Sketcher.Constraint("Diameter", 0, Q("3.2 mm")),
    Sketcher.Constraint("DistanceX", -1, 1, 0, 3, Q("65.355339 mm")),
    Sketcher.Constraint("DistanceY", -1, 1, 0, 3, Q("65.355339 mm")),
])
pocket17 = doc.addObject("PartDesign::Pocket", "Pocket016")
body.addObject(pocket17)
pocket17.Profile = sketch18
pocket17.Type = "ThroughAll"
pocket17.Reversed = True

# Sketch on XZ plane
sketch19 = doc.addObject("Sketcher::SketchObject", "Sketch018")
body.addObject(sketch19)
sketch19.AttachmentSupport = (doc.XZ_Plane, [""])
sketch19.MapMode = "FlatFace"
sketch19.AttachmentOffset = App.Placement(App.Vector(0, 0, -3), App.Rotation())
sketch19.addGeometry([
    Part.Circle(App.Vector(-87, 87, 0), App.Vector(0, 0, 1), 1.7),
    Part.Circle(App.Vector(-87, 75.7, 0), App.Vector(0, 0, 1), 1.7),
    Part.Circle(App.Vector(-75.7, 75.7, 0), App.Vector(0, 0, 1), 1.7),
    Part.Circle(App.Vector(-75.7, 87, 0), App.Vector(0, 0, 1), 1.7),
], False)
sketch19.addConstraint([
    Sketcher.Constraint("Equal", 0, 1),
    Sketcher.Constraint("Equal", 1, 2),
    Sketcher.Constraint("Equal", 2, 3),
    Sketcher.Constraint("Horizontal", 1, 3, 2, 3),
    Sketcher.Constraint("Horizontal", 0, 3, 3, 3),
    Sketcher.Constraint("Vertical", 0, 3, 1, 3),
    Sketcher.Constraint("Vertical", 2, 3, 3, 3),
    Sketcher.Constraint("Diameter", 0, Q("3.4 mm")),
    Sketcher.Constraint("DistanceY", 1, 3, 0, 3, Q("11.313708 mm")),
    Sketcher.Constraint("DistanceX", 1, 3, 2, 3, Q("11.313708 mm")),
    Sketcher.Constraint("DistanceX", 0, 3, -1, 1, Q("86.974134 mm")),
    Sketcher.Constraint("DistanceY", -1, 1, 0, 3, Q("86.974134 mm")),
])
pocket18 = doc.addObject("PartDesign::Pocket", "Pocket017")
body.addObject(pocket18)
pocket18.Profile = sketch19
pocket18.Type = "ThroughAll"
pocket18.Reversed = True
doc.recompute()

polarpattern3 = doc.addObject("PartDesign::PolarPattern", "PolarPattern002")
body.addObject(polarpattern3)
polarpattern3.Originals = [pocket18]
polarpattern3.Axis = (doc.Y_Axis, [""])
polarpattern3.Angle = 360
polarpattern3.Occurrences = 4
body.Tip = polarpattern3

# Sketch on XZ plane
sketch20 = doc.addObject("Sketcher::SketchObject", "Sketch019")
body.addObject(sketch20)
sketch20.AttachmentSupport = (doc.XZ_Plane, [""])
sketch20.MapMode = "FlatFace"
sketch20.AttachmentOffset = App.Placement(App.Vector(0, 0, -3), App.Rotation())
sketch20.addGeometry([
    Part.Circle(App.Vector(-22.5, -27.4, 0), App.Vector(0, 0, 1), 1.7),
    Part.Circle(App.Vector(-22.5, 27.4, 0), App.Vector(0, 0, 1), 1.7),
], False)
sketch20.addConstraint([
    Sketcher.Constraint("Equal", 0, 1),
    Sketcher.Constraint("Vertical", 0, 3, 1, 3),
    Sketcher.Constraint("Diameter", 0, Q("3.4 mm")),
    Sketcher.Constraint("DistanceY", -1, 1, 1, 3, Q("27.35 mm")),
    Sketcher.Constraint("DistanceX", 0, 3, -1, 1, Q("22.525 mm")),
    Sketcher.Constraint("DistanceY", 0, 3, -1, 1, Q("27.375 mm")),
])
pocket19 = doc.addObject("PartDesign::Pocket", "Pocket018")
body.addObject(pocket19)
pocket19.Profile = sketch20
pocket19.Type = "ThroughAll"
pocket19.Reversed = True
doc.recompute()

mirrored = doc.addObject("PartDesign::Mirrored", "Mirrored")
body.addObject(mirrored)
mirrored.Originals = [pocket19]
mirrored.MirrorPlane = (doc.YZ_Plane, [""])
body.Tip = mirrored

# Sketch on XZ plane
sketch21 = doc.addObject("Sketcher::SketchObject", "Sketch020")
body.addObject(sketch21)
sketch21.AttachmentSupport = (doc.XZ_Plane, [""])
sketch21.MapMode = "FlatFace"
sketch21.AttachmentOffset = App.Placement(App.Vector(0, 0, -3), App.Rotation())
sketch21.addGeometry(Part.Circle(App.Vector(-27, 0, 0), App.Vector(0, 0, 1), 1.7), False)
sketch21.addConstraint([
    Sketcher.Constraint("PointOnObject", 0, 3, -1),
    Sketcher.Constraint("Diameter", 0, Q("3.4 mm")),
    Sketcher.Constraint("DistanceX", 0, 3, -1, 1, Q("27 mm")),
])
pocket20 = doc.addObject("PartDesign::Pocket", "Pocket019")
body.addObject(pocket20)
pocket20.Profile = sketch21
pocket20.Type = "ThroughAll"
pocket20.Reversed = True
doc.recompute()

linearpattern2 = doc.addObject("PartDesign::LinearPattern", "LinearPattern001")
body.addObject(linearpattern2)
linearpattern2.Originals = [pocket20]
linearpattern2.Direction = (doc.Z_Axis, [""])
linearpattern2.Mode = "offset"
linearpattern2.Offset = 10
linearpattern2.Occurrences = 2
body.Tip = linearpattern2
doc.recompute()

linearpattern3 = doc.addObject("PartDesign::LinearPattern", "LinearPattern002")
body.addObject(linearpattern3)
linearpattern3.Originals = [pocket20]
linearpattern3.Direction = (doc.Z_Axis, [""])
linearpattern3.Mode = "offset"
linearpattern3.Offset = 10
linearpattern3.Occurrences = 2
linearpattern3.Reversed = True
body.Tip = linearpattern3
doc.recompute()

mirrored2 = doc.addObject("PartDesign::Mirrored", "Mirrored001")
body.addObject(mirrored2)
mirrored2.Originals = [pocket20]
mirrored2.MirrorPlane = (doc.YZ_Plane, [""])
body.Tip = mirrored2

# Sketch on XZ plane
sketch22 = doc.addObject("Sketcher::SketchObject", "Sketch021")
body.addObject(sketch22)
sketch22.AttachmentSupport = (doc.XZ_Plane, [""])
sketch22.MapMode = "FlatFace"
sketch22.AttachmentOffset = App.Placement(App.Vector(0, 0, -3), App.Rotation())
sketch22.addGeometry(Part.Circle(App.Vector(27, 10, 0), App.Vector(0, 0, 1), 1.7), False)
sketch22.addConstraint([
    Sketcher.Constraint("Diameter", 0, Q("3.4 mm")),
    Sketcher.Constraint("DistanceX", -1, 1, 0, 3, Q("27 mm")),
    Sketcher.Constraint("DistanceY", -1, 1, 0, 3, Q("10 mm")),
])
pocket21 = doc.addObject("PartDesign::Pocket", "Pocket020")
body.addObject(pocket21)
pocket21.Profile = sketch22
pocket21.Type = "ThroughAll"
pocket21.Reversed = True

# Sketch on XZ plane
sketch23 = doc.addObject("Sketcher::SketchObject", "Sketch022")
body.addObject(sketch23)
sketch23.AttachmentSupport = (doc.XZ_Plane, [""])
sketch23.MapMode = "FlatFace"
sketch23.AttachmentOffset = App.Placement(App.Vector(0, 0, -3), App.Rotation())
sketch23.addGeometry(Part.Circle(App.Vector(27, -10, 0), App.Vector(0, 0, 1), 1.7), False)
sketch23.addConstraint([
    Sketcher.Constraint("Diameter", 0, Q("3.4 mm")),
    Sketcher.Constraint("DistanceX", -1, 1, 0, 3, Q("27 mm")),
    Sketcher.Constraint("DistanceY", 0, 3, -1, 1, Q("10 mm")),
])
pocket22 = doc.addObject("PartDesign::Pocket", "Pocket021")
body.addObject(pocket22)
pocket22.Profile = sketch23
pocket22.Type = "ThroughAll"
pocket22.Reversed = True

doc.recompute()
